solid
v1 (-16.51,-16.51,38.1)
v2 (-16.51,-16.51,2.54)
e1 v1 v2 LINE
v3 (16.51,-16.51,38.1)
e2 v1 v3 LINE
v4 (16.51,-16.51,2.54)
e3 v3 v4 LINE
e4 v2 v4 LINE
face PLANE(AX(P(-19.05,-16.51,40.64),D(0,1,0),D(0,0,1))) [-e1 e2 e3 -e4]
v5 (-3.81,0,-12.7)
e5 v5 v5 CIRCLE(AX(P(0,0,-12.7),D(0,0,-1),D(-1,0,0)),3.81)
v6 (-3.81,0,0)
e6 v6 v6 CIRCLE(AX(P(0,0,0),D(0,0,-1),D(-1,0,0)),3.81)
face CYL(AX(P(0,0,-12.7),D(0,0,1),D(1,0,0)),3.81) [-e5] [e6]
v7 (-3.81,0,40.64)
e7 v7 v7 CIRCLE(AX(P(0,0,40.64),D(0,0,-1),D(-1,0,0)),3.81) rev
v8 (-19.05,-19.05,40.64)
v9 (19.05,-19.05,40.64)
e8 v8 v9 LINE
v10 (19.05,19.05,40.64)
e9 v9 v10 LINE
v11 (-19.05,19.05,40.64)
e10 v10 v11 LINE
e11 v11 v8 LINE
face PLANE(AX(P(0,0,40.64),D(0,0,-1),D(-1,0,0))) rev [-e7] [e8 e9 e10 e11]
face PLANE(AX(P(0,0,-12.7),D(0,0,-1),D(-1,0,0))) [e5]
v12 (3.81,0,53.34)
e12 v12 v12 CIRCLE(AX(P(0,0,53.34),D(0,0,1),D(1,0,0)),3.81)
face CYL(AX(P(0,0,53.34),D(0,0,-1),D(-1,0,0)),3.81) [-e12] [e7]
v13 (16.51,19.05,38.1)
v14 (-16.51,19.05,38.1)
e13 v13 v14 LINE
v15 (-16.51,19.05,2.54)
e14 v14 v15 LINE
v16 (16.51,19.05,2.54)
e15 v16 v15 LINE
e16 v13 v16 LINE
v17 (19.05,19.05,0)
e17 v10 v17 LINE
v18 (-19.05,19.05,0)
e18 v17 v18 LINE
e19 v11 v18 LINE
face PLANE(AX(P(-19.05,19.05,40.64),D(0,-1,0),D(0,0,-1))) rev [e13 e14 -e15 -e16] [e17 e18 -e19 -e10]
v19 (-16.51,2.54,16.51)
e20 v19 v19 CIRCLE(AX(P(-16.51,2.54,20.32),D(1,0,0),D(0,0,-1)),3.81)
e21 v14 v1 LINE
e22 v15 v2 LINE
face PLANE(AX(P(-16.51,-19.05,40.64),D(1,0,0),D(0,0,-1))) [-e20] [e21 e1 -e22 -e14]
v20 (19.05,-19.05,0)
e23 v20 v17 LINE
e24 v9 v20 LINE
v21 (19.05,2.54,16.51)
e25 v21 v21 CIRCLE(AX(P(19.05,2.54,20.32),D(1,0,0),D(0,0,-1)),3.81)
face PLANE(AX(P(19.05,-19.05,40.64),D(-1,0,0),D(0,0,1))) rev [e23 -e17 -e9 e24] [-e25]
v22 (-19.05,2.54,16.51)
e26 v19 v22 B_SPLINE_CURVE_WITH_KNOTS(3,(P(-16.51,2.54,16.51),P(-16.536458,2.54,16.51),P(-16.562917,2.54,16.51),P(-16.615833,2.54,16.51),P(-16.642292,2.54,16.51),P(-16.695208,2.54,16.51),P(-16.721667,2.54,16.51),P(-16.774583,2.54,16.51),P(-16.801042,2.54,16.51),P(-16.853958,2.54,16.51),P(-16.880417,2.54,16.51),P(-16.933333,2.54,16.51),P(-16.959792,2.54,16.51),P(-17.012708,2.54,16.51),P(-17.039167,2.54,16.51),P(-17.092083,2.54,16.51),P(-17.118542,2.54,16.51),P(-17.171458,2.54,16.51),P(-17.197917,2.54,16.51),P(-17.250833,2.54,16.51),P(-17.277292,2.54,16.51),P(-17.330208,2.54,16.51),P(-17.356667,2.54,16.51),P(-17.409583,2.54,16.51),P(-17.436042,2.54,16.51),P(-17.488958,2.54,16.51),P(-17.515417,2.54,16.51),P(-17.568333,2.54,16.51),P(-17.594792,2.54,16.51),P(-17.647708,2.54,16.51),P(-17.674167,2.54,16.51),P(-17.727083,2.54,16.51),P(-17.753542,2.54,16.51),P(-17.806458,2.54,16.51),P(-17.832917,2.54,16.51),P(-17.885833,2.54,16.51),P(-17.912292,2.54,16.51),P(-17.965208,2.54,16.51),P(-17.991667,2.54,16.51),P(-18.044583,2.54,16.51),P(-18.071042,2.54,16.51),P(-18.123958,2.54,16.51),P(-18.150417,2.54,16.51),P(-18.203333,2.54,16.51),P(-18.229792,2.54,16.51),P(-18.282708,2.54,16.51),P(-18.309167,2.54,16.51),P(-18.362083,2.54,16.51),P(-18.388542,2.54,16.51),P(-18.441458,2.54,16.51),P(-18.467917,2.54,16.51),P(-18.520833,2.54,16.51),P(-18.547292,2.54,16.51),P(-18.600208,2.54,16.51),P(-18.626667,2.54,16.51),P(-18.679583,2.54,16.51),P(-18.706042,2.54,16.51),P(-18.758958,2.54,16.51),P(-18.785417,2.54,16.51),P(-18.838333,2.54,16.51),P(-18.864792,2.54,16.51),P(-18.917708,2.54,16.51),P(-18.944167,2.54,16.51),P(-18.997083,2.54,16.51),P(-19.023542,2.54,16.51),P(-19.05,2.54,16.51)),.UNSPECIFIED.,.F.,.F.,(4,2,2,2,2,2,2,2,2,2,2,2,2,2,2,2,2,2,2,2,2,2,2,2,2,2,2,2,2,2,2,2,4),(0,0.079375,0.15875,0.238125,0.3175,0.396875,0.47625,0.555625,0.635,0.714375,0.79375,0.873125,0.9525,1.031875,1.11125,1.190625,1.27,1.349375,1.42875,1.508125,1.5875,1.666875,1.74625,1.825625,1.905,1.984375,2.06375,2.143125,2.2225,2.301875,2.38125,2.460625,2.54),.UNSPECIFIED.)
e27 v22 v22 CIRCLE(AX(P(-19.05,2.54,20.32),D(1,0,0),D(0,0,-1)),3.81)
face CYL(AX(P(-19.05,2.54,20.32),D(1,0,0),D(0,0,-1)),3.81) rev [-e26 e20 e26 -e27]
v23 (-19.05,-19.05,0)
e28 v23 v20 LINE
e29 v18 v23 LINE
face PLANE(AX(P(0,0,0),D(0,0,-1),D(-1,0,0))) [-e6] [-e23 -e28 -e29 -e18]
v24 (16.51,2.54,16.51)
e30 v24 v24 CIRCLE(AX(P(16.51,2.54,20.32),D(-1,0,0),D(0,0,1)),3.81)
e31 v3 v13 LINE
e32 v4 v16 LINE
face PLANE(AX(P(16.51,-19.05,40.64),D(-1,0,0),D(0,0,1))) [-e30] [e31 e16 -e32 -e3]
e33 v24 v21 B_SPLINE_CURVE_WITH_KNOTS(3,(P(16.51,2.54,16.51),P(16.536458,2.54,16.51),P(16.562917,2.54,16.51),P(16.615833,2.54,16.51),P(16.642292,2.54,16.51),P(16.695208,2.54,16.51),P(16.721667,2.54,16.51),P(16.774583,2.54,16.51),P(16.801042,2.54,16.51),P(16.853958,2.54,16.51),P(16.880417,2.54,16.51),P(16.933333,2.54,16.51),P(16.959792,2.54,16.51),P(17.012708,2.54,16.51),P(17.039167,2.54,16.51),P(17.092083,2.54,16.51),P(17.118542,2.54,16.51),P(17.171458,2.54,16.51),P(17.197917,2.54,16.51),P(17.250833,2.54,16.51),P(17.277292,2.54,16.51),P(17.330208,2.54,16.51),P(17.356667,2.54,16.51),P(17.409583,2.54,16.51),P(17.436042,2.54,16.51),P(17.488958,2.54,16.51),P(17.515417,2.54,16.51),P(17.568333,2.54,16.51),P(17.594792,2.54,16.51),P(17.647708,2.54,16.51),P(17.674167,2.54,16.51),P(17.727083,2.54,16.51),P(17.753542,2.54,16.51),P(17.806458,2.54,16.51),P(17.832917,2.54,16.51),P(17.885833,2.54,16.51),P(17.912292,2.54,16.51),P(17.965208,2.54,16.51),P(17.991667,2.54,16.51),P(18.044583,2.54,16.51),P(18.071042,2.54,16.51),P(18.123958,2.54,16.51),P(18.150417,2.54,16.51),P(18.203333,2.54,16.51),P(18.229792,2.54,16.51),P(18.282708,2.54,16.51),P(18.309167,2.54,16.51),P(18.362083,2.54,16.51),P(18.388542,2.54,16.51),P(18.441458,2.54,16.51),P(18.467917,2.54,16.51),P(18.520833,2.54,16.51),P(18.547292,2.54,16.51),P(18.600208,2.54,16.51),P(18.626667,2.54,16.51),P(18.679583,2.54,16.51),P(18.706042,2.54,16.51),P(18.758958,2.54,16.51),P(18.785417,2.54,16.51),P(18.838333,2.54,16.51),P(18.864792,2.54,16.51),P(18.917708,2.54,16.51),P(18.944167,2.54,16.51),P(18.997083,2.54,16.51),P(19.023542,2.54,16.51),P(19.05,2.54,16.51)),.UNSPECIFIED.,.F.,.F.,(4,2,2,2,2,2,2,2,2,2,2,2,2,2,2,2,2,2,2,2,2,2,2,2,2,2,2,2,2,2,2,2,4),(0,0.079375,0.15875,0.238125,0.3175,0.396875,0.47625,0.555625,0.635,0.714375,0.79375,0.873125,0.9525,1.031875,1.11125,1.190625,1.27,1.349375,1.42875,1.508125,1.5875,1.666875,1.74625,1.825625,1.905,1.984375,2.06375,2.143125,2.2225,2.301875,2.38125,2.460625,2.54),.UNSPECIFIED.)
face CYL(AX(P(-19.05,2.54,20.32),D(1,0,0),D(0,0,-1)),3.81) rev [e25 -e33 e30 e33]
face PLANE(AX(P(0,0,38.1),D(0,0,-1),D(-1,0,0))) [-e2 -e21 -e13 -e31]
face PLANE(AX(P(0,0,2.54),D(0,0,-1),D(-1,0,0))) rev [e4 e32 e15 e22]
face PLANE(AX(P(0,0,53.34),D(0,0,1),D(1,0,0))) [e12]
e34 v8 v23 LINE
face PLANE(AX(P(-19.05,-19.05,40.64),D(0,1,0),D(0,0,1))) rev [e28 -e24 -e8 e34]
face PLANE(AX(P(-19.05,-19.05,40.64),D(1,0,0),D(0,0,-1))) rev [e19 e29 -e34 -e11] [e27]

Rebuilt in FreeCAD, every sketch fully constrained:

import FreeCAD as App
import Part
import Sketcher

V = App.Vector
Q = App.Units.Quantity


def faces_at(feature, points):
    """Names of the faces that lie closest to the given points."""
    faces = feature.Shape.Faces
    near = lambda p: min(range(len(faces)), key=lambda i: faces[i].distToShape(Part.Vertex(*p))[0])
    return sorted({f"Face{near(p) + 1}" for p in points})


def add_polygon(sketch, points):
    """Adds a closed chain of lines whose ends are joined by coincident constraints."""
    first, n = sketch.GeometryCount, len(points)
    for a, b in zip(points, points[1:] + points[:1]):
        sketch.addGeometry(Part.LineSegment(App.Vector(*a, 0), App.Vector(*b, 0)), False)
    for i in range(n):
        sketch.addConstraint(Sketcher.Constraint("Coincident", first + i, 2, first + (i + 1) % n, 1))

doc = App.newDocument("Part")
body = doc.addObject("PartDesign::Body", "Body")

sketch1 = body.newObject("Sketcher::SketchObject", "Sketch")
sketch1.AttachmentSupport = (doc.getObject("XY_Plane"), [""])
sketch1.MapMode = "FlatFace"
add_polygon(sketch1, [(-19.05, 19.05), (-19.05, -19.05), (19.05, -19.05), (19.05, 19.05)])
sketch1.addConstraint([
    Sketcher.Constraint("Vertical", 0),
    Sketcher.Constraint("Horizontal", 1),
    Sketcher.Constraint("Vertical", 2),
    Sketcher.Constraint("Horizontal", 3),
    Sketcher.Constraint("Symmetric", 0, 2, 2, 2, -1, 1),
    Sketcher.Constraint("Equal", 3, 0),
    Sketcher.Constraint("DistanceX", 1, 1, 1, 2, Q("1.5 in")),
])
pad1 = body.newObject("PartDesign::Pad", "Pad")
pad1.Profile = sketch1
pad1.Length = Q("1.6 in")
doc.recompute()

thickness = body.newObject("PartDesign::Thickness", "Thickness")
thickness.Base = (pad1, faces_at(pad1, [(0, 19.05, 20.32)]))
thickness.Value = Q("0.1 in")
thickness.Reversed = True
thickness.Join = "Intersection"

sketch2 = body.newObject("Sketcher::SketchObject", "Sketch001")
sketch2.AttachmentSupport = (doc.getObject("XY_Plane"), [""])
sketch2.MapMode = "FlatFace"
sketch2.AttachmentOffset = App.Placement(V(0, 0, 1.6 * 25.4), App.Rotation())
sketch2.addGeometry(Part.Circle(V(0, 0, 0), V(0, 0, 1), 3.81), False)
sketch2.addConstraint([
    Sketcher.Constraint("Coincident", 0, 3, -1, 1),
    Sketcher.Constraint("Diameter", 0, Q("0.3 in")),
])
pad2 = body.newObject("PartDesign::Pad", "Pad001")
pad2.Profile = sketch2
pad2.Length = Q("0.5 in")

sketch3 = body.newObject("Sketcher::SketchObject", "Sketch002")
sketch3.AttachmentSupport = (doc.getObject("XY_Plane"), [""])
sketch3.MapMode = "FlatFace"
sketch3.AttachmentOffset = App.Placement(V(0, 0, -0.5 * 25.4), App.Rotation())
sketch3.addGeometry(Part.Circle(V(0, 0, 0), V(0, 0, 1), 3.81), False)
sketch3.addConstraint([
    Sketcher.Constraint("Coincident", 0, 3, -1, 1),
    Sketcher.Constraint("Diameter", 0, Q("0.3 in")),
])
pad3 = body.newObject("PartDesign::Pad", "Pad002")
pad3.Profile = sketch3
pad3.Length = Q("0.5 in")

sketch4 = body.newObject("Sketcher::SketchObject", "Sketch003")
sketch4.AttachmentSupport = (doc.getObject("XZ_Plane"), [""])
sketch4.MapMode = "FlatFace"
add_polygon(sketch4, [(0.821666, -8.258298), (0.821666, -4.448298), (-0.448334, -4.448298), (-0.448334, -8.258298)])
sketch4.addConstraint([
    Sketcher.Constraint("Vertical", 0),
    Sketcher.Constraint("Horizontal", 1),
    Sketcher.Constraint("Vertical", 2),
    Sketcher.Constraint("Horizontal", 3),
    Sketcher.Constraint("DistanceX", 1, 2, 1, 1, Q("0.05 in")),
    Sketcher.Constraint("DistanceY", 0, 1, 0, 2, Q("0.15 in")),
    Sketcher.Constraint("DistanceY", 0, 2, -1, 1, 4.448298),
    Sketcher.Constraint("DistanceX", -1, 1, 0, 2, 0.821666),
])
pad4 = body.newObject("PartDesign::Pad", "Pad003")
pad4.Profile = sketch4
pad4.Length = Q("0.01 in")

sketch5 = body.newObject("Sketcher::SketchObject", "Sketch004")
sketch5.AttachmentSupport = (doc.getObject("YZ_Plane"), [""])
sketch5.MapMode = "FlatFace"
sketch5.AttachmentOffset = App.Placement(V(0, 0, 0.75 * 25.4), App.Rotation())
sketch5.addGeometry(Part.Circle(V(2.54, 20.32, 0), V(0, 0, 1), 3.81), False)
sketch5.addConstraint([
    Sketcher.Constraint("Diameter", 0, Q("0.3 in")),
    Sketcher.Constraint("DistanceX", -1, 1, 0, 3, Q("0.1 in")),
    Sketcher.Constraint("DistanceY", -1, 1, 0, 3, Q("0.8 in")),
])
pocket1 = body.newObject("PartDesign::Pocket", "Pocket")
pocket1.Profile = sketch5
pocket1.Type = "ThroughAll"

doc.recompute()
